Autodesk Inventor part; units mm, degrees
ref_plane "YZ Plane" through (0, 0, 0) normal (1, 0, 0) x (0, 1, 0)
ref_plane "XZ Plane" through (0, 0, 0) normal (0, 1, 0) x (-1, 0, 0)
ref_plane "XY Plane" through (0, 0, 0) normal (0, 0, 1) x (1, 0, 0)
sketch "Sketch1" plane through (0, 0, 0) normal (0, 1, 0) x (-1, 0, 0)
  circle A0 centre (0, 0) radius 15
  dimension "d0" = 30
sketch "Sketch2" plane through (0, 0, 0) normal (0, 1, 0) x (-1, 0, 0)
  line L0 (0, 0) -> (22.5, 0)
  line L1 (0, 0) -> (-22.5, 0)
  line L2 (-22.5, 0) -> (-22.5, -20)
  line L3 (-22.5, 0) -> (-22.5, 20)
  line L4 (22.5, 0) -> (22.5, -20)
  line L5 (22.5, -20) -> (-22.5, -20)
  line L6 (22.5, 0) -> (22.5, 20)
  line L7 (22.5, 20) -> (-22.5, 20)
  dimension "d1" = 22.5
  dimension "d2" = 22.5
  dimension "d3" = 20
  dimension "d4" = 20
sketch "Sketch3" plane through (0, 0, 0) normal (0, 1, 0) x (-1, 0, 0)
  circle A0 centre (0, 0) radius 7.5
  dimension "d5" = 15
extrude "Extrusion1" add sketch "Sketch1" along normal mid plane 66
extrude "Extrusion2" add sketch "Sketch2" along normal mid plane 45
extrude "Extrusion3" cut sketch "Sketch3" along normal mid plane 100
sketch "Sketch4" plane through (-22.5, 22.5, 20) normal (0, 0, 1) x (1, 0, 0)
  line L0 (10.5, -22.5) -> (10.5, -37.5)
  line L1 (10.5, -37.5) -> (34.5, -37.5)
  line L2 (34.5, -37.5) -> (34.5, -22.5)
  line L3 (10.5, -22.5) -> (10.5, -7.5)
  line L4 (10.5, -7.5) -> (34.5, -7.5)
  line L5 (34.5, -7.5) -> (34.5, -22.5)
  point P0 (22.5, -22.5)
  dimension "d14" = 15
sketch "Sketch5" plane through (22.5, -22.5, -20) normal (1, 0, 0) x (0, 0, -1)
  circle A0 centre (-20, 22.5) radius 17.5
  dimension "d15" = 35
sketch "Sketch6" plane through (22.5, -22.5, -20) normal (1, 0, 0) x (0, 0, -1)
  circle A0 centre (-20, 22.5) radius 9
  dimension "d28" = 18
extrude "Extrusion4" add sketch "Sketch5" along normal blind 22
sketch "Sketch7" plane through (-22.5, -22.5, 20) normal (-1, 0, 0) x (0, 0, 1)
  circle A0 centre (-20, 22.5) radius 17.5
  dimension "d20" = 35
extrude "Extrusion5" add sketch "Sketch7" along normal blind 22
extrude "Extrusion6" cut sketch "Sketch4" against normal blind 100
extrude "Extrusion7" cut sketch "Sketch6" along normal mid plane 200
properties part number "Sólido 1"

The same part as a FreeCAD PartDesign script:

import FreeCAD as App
import Part
import Sketcher

V = App.Vector
Q = App.Units.Quantity

doc = App.newDocument("Part")
body = doc.addObject("PartDesign::Body", "Body")

sketch1 = body.newObject("Sketcher::SketchObject", "Sketch")
sketch1.AttachmentSupport = (doc.getObject("XZ_Plane"), [""])
sketch1.MapMode = "FlatFace"
sketch1.addGeometry(Part.Circle(V(0, 0, 0), V(0, 0, 1), 15), False)
sketch1.addConstraint(Sketcher.Constraint("Coincident", 0, 3, -1, 1))
sketch1.addConstraint(Sketcher.Constraint("Diameter", 0, Q("30 mm")))
pad1 = body.newObject("PartDesign::Pad", "Pad")
pad1.Profile = sketch1
pad1.Length = 66
pad1.Midplane = True

sketch2 = body.newObject("Sketcher::SketchObject", "Sketch001")
sketch2.AttachmentSupport = (doc.getObject("XZ_Plane"), [""])
sketch2.MapMode = "FlatFace"
sketch2.addGeometry(Part.LineSegment(V(22.5, 20, 0), V(22.5, -20, 0)), False)
sketch2.addGeometry(Part.LineSegment(V(22.5, -20, 0), V(-22.5, -20, 0)), False)
sketch2.addGeometry(Part.LineSegment(V(-22.5, -20, 0), V(-22.5, 20, 0)), False)
sketch2.addGeometry(Part.LineSegment(V(-22.5, 20, 0), V(22.5, 20, 0)), False)
sketch2.addConstraint(Sketcher.Constraint("Coincident", 0, 2, 1, 1))
sketch2.addConstraint(Sketcher.Constraint("Coincident", 1, 2, 2, 1))
sketch2.addConstraint(Sketcher.Constraint("Coincident", 2, 2, 3, 1))
sketch2.addConstraint(Sketcher.Constraint("Coincident", 3, 2, 0, 1))
sketch2.addConstraint(Sketcher.Constraint("Vertical", 0))
sketch2.addConstraint(Sketcher.Constraint("Horizontal", 1))
sketch2.addConstraint(Sketcher.Constraint("Vertical", 2))
sketch2.addConstraint(Sketcher.Constraint("Horizontal", 3))
sketch2.addConstraint(Sketcher.Constraint("Symmetric", 0, 2, 2, 2, -1, 1))
sketch2.addConstraint(Sketcher.Constraint("DistanceY", 0, 2, -1, 1, Q("20 mm")))
sketch2.addConstraint(Sketcher.Constraint("DistanceX", -1, 1, 0, 2, Q("22.5 mm")))
pad2 = body.newObject("PartDesign::Pad", "Pad001")
pad2.Profile = sketch2
pad2.Length = 45
pad2.Midplane = True

sketch3 = body.newObject("Sketcher::SketchObject", "Sketch002")
sketch3.AttachmentSupport = (doc.getObject("XZ_Plane"), [""])
sketch3.MapMode = "FlatFace"
sketch3.addGeometry(Part.Circle(V(0, 0, 0), V(0, 0, 1), 7.5), False)
sketch3.addConstraint(Sketcher.Constraint("Coincident", 0, 3, -1, 1))
sketch3.addConstraint(Sketcher.Constraint("Diameter", 0, Q("15 mm")))
pocket1 = body.newObject("PartDesign::Pocket", "Pocket")
pocket1.Profile = sketch3
pocket1.Length = 100
pocket1.Midplane = True

sketch4 = body.newObject("Sketcher::SketchObject", "Sketch003")
sketch4.AttachmentSupport = (doc.getObject("YZ_Plane"), [""])
sketch4.MapMode = "FlatFace"
sketch4.AttachmentOffset = App.Placement(V(0, 0, 22.5), App.Rotation())
sketch4.addGeometry(Part.Circle(V(0, 0, 0), V(0, 0, 1), 17.5), False)
sketch4.addConstraint(Sketcher.Constraint("Coincident", 0, 3, -1, 1))
sketch4.addConstraint(Sketcher.Constraint("Diameter", 0, Q("35 mm")))
pad3 = body.newObject("PartDesign::Pad", "Pad002")
pad3.Profile = sketch4
pad3.Length = 22

sketch5 = body.newObject("Sketcher::SketchObject", "Sketch004")
sketch5.AttachmentSupport = (doc.getObject("YZ_Plane"), [""])
sketch5.MapMode = "FlatFace"
sketch5.AttachmentOffset = App.Placement(V(0, 0, -22.5), App.Rotation())
sketch5.addGeometry(Part.Circle(V(0, 0, 0), V(0, 0, 1), 17.5), False)
sketch5.addConstraint(Sketcher.Constraint("Coincident", 0, 3, -1, 1))
sketch5.addConstraint(Sketcher.Constraint("Diameter", 0, Q("35 mm")))
pad4 = body.newObject("PartDesign::Pad", "Pad003")
pad4.Profile = sketch5
pad4.Length = 22
pad4.Reversed = True

sketch6 = body.newObject("Sketcher::SketchObject", "Sketch005")
sketch6.AttachmentSupport = (doc.getObject("XY_Plane"), [""])
sketch6.MapMode = "FlatFace"
sketch6.AttachmentOffset = App.Placement(V(0, 0, 20), App.Rotation())
sketch6.addGeometry(Part.LineSegment(V(-12, 15, 0), V(-12, -15, 0)), False)
sketch6.addGeometry(Part.LineSegment(V(-12, -15, 0), V(12, -15, 0)), False)
sketch6.addGeometry(Part.LineSegment(V(12, -15, 0), V(12, 15, 0)), False)
sketch6.addGeometry(Part.LineSegment(V(12, 15, 0), V(-12, 15, 0)), False)
sketch6.addConstraint(Sketcher.Constraint("Coincident", 0, 2, 1, 1))
sketch6.addConstraint(Sketcher.Constraint("Coincident", 1, 2, 2, 1))
sketch6.addConstraint(Sketcher.Constraint("Coincident", 2, 2, 3, 1))
sketch6.addConstraint(Sketcher.Constraint("Coincident", 3, 2, 0, 1))
sketch6.addConstraint(Sketcher.Constraint("Vertical", 0))
sketch6.addConstraint(Sketcher.Constraint("Horizontal", 1))
sketch6.addConstraint(Sketcher.Constraint("Vertical", 2))
sketch6.addConstraint(Sketcher.Constraint("Horizontal", 3))
sketch6.addConstraint(Sketcher.Constraint("Symmetric", 0, 2, 2, 2, -1, 1))
sketch6.addConstraint(Sketcher.Constraint("DistanceY", 0, 2, -1, 1, Q("15 mm")))
sketch6.addConstraint(Sketcher.Constraint("DistanceX", 1, 1, 1, 2, Q("24 mm")))
pocket2 = body.newObject("PartDesign::Pocket", "Pocket001")
pocket2.Profile = sketch6
pocket2.Length = 100

sketch7 = body.newObject("Sketcher::SketchObject", "Sketch006")
sketch7.AttachmentSupport = (doc.getObject("YZ_Plane"), [""])
sketch7.MapMode = "FlatFace"
sketch7.AttachmentOffset = App.Placement(V(0, 0, 22.5), App.Rotation())
sketch7.addGeometry(Part.Circle(V(0, 0, 0), V(0, 0, 1), 9), False)
sketch7.addConstraint(Sketcher.Constraint("Coincident", 0, 3, -1, 1))
sketch7.addConstraint(Sketcher.Constraint("Diameter", 0, Q("18 mm")))
pocket3 = body.newObject("PartDesign::Pocket", "Pocket002")
pocket3.Profile = sketch7
pocket3.Length = 200
pocket3.Midplane = True

doc.recompute()
